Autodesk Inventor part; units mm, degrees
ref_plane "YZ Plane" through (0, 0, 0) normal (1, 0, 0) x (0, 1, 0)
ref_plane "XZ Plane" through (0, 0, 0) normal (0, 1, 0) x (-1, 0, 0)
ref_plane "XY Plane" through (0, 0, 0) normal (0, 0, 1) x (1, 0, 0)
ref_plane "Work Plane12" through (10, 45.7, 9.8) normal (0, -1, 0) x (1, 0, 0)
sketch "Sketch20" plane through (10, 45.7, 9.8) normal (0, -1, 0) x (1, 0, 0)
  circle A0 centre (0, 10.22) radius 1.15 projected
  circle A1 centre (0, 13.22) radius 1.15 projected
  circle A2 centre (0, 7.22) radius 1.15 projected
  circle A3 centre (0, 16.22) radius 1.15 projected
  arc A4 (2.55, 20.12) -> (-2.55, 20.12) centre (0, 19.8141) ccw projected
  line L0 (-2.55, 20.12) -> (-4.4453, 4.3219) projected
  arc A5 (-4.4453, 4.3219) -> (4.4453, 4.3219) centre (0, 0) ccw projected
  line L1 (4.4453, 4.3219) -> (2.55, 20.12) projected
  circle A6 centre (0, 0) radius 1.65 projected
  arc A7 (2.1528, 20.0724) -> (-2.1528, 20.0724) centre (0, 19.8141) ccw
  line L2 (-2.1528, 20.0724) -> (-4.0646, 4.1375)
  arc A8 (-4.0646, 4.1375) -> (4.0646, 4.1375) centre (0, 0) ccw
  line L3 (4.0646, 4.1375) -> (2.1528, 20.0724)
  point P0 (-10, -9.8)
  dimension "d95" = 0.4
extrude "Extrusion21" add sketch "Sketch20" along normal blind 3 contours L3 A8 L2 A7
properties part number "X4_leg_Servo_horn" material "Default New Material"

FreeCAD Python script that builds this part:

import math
import FreeCAD as App
import Part
import Sketcher

V = App.Vector
Q = App.Units.Quantity

doc = App.newDocument("Part")
params = doc.addObject("Spreadsheet::Sheet", "Params")
for row, (alias, value) in enumerate([
    ("sketch1_diameter", "3.3 mm"),
    ("sketch1_diameter2", "2.3 mm"),
    ("sketch1_radius", "5.8 mm"),
    ("pad1_length", "3 mm"),
], start=1):
    params.set(f"A{row}", alias)
    params.set(f"B{row}", "=" + value)
    params.setAlias(f"B{row}", alias)

body = doc.addObject("PartDesign::Body", "Body")

sketch1 = body.newObject("Sketcher::SketchObject", "Sketch")
sketch1.AttachmentSupport = (doc.getObject("XZ_Plane"), [""])
sketch1.MapMode = "FlatFace"
sketch1.AttachmentOffset = App.Placement(V(0, 0, -45.7), App.Rotation())
sketch1.addGeometry([
    Part.LineSegment(V(14.0646, 13.9375, 0), V(12.1528, 29.8724, 0)),
    Part.ArcOfCircle(Part.Circle(V(10, 29.6141, 0), V(0, 0, 1), 2.16824), math.radians(6.841829), math.radians(173.158171)),
    Part.LineSegment(V(7.8472, 29.8724, 0), V(5.9354, 13.9375, 0)),
    Part.ArcOfCircle(Part.Circle(V(10, 9.8, 0), V(0, 0, 1), 5.79999), math.radians(134.49077), math.radians(405.50923)),
    Part.Circle(V(10, 9.8, 0), V(0, 0, 1), 1.65),
    Part.Circle(V(10, 17.02, 0), V(0, 0, 1), 1.15),
    Part.Circle(V(10, 20.02, 0), V(0, 0, 1), 1.15),
    Part.Circle(V(10, 23.02, 0), V(0, 0, 1), 1.15),
    Part.Circle(V(10, 26.02, 0), V(0, 0, 1), 1.15),
], False)
sketch1.addConstraint([
    Sketcher.Constraint("Tangent", 0, 2, 1, 1),
    Sketcher.Constraint("Tangent", 1, 2, 2, 1),
    Sketcher.Constraint("Coincident", 2, 2, 3, 1),
    Sketcher.Constraint("Coincident", 3, 2, 0, 1),
    Sketcher.Constraint("Coincident", 4, 3, 3, 3),
    Sketcher.Constraint("Equal", 5, 6),
    Sketcher.Constraint("Equal", 6, 7),
    Sketcher.Constraint("Equal", 7, 8),
    Sketcher.Constraint("Horizontal", 0, 2, 1, 2),
    Sketcher.Constraint("Horizontal", 2, 2, 3, 2),
    Sketcher.Constraint("Vertical", 4, 3, 5, 3),
    Sketcher.Constraint("Vertical", 5, 3, 6, 3),
    Sketcher.Constraint("Vertical", 6, 3, 7, 3),
    Sketcher.Constraint("Vertical", 7, 3, 8, 3),
    Sketcher.Constraint("Diameter", 4, Q("3.3 mm")),
    Sketcher.Constraint("Diameter", 5, Q("2.3 mm")),
    Sketcher.Constraint("Radius", 3, Q("5.8 mm")),
    Sketcher.Constraint("DistanceX", -1, 1, 1, 3, Q("10 mm")),
    Sketcher.Constraint("DistanceY", 5, 3, 6, 3, Q("3 mm")),
    Sketcher.Constraint("DistanceY", 6, 3, 7, 3, Q("3 mm")),
    Sketcher.Constraint("DistanceY", 7, 3, 8, 3, Q("3 mm")),
    Sketcher.Constraint("DistanceY", -1, 1, 3, 3, Q("9.8 mm")),
    Sketcher.Constraint("Radius", 1, Q("2.1682 mm")),
    Sketcher.Constraint("DistanceY", -1, 1, 5, 3, Q("17.02 mm")),
    Sketcher.Constraint("DistanceY", -1, 1, 1, 3, Q("29.614 mm")),
    Sketcher.Constraint("Distance", 0, Q("16.0492 mm")),
])
sketch1.setExpression("Constraints[14]", "Params.sketch1_diameter")
sketch1.setExpression("Constraints[15]", "Params.sketch1_diameter2")
sketch1.setExpression("Constraints[16]", "Params.sketch1_radius")
pad1 = body.newObject("PartDesign::Pad", "Pad")
pad1.Profile = sketch1
pad1.setExpression("Length", "Params.pad1_length")

doc.recompute()
